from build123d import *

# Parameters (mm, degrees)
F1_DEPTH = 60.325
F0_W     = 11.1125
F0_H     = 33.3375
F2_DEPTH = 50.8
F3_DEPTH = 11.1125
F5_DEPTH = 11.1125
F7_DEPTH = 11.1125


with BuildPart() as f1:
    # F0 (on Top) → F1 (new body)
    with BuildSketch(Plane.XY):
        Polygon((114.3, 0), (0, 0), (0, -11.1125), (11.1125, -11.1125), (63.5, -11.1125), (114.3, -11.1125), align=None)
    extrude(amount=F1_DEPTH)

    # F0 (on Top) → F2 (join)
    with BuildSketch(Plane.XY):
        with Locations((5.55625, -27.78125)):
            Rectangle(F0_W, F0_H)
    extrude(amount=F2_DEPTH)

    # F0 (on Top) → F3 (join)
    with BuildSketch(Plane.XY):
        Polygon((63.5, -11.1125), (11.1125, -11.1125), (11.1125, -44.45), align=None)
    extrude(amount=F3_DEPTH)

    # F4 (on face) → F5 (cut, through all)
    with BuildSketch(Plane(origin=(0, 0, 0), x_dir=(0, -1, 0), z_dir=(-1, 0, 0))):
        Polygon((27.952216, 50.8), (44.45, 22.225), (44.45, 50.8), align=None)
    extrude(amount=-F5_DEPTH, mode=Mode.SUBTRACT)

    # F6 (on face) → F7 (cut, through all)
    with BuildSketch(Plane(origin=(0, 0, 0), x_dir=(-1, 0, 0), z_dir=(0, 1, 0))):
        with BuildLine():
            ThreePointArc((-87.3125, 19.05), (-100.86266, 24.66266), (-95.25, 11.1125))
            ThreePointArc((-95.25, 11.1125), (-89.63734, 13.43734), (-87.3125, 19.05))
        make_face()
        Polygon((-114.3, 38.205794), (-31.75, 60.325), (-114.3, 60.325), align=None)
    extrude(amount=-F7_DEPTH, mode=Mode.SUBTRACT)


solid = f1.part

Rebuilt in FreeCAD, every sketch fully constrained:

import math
import FreeCAD as App
import Part
import Sketcher
Q = App.Units.Quantity


def add_polygon(sketch, points):
    """Adds a closed chain of lines whose ends are joined by coincident constraints."""
    first, n = sketch.GeometryCount, len(points)
    for a, b in zip(points, points[1:] + points[:1]):
        sketch.addGeometry(Part.LineSegment(App.Vector(*a, 0), App.Vector(*b, 0)), False)
    for i in range(n):
        sketch.addConstraint(Sketcher.Constraint("Coincident", first + i, 2, first + (i + 1) % n, 1))

doc = App.newDocument("Part")
params = doc.addObject("Spreadsheet::Sheet", "Params")
for row, (alias, value) in enumerate([
    ("sketch1_width", "4.5 in"),
    ("sketch1_height", "0.4375 in"),
    ("pad1_length", "2.375 in"),
    ("sketch2_width", "0.4375 in"),
    ("sketch2_height", "1.3125 in"),
    ("pad2_length", "2 in"),
    ("sketch3_width", "2.0625 in"),
    ("sketch3_height", "1.3125 in"),
    ("pad3_length", "0.4375 in"),
    ("sketch4_height", "1.125 in"),
    ("sketch5_radius", "0.3125 in"),
    ("sketch5_width", "3.25 in"),
], start=1):
    params.set(f"A{row}", alias)
    params.set(f"B{row}", "=" + value)
    params.setAlias(f"B{row}", alias)

body = doc.addObject("PartDesign::Body", "Body")

# Sketch on XY plane
sketch1 = body.newObject("Sketcher::SketchObject", "Sketch")
sketch1.AttachmentSupport = (doc.getObject("XY_Plane"), [""])
sketch1.MapMode = "FlatFace"
add_polygon(sketch1, [(114, 0), (0, 0), (0, -11), (114, -11)])  # lines 0-3
sketch1.addConstraint(Sketcher.Constraint("Horizontal", 0))
sketch1.addConstraint(Sketcher.Constraint("Vertical", 1))
sketch1.addConstraint(Sketcher.Constraint("Horizontal", 2))
sketch1.addConstraint(Sketcher.Constraint("Vertical", 3))
sketch1.addConstraint(Sketcher.Constraint("Coincident", 0, 2, -1, 1))
sketch1.addConstraint(Sketcher.Constraint("DistanceX", 0, 2, 0, 1, Q("4.5 in")))
sketch1.addConstraint(Sketcher.Constraint("DistanceY", 1, 2, 1, 1, Q("0.4375 in")))
sketch1.setExpression("Constraints[9]", "Params.sketch1_width")
sketch1.setExpression("Constraints[10]", "Params.sketch1_height")
pad1 = body.newObject("PartDesign::Pad", "Pad")
pad1.Profile = sketch1
pad1.setExpression("Length", "Params.pad1_length")

# Sketch on XY plane
sketch2 = body.newObject("Sketcher::SketchObject", "Sketch001")
sketch2.AttachmentSupport = (doc.getObject("XY_Plane"), [""])
sketch2.MapMode = "FlatFace"
add_polygon(sketch2, [(0, -11), (0, -44), (11, -44), (11, -11)])  # lines 0-3
sketch2.addConstraint(Sketcher.Constraint("Vertical", 0))
sketch2.addConstraint(Sketcher.Constraint("Horizontal", 1))
sketch2.addConstraint(Sketcher.Constraint("Vertical", 2))
sketch2.addConstraint(Sketcher.Constraint("Horizontal", 3))
sketch2.addConstraint(Sketcher.Constraint("PointOnObject", 0, 2, -2))
sketch2.addConstraint(Sketcher.Constraint("DistanceX", 1, 1, 1, 2, Q("0.4375 in")))
sketch2.addConstraint(Sketcher.Constraint("DistanceY", 0, 2, 0, 1, Q("1.3125 in")))
sketch2.addConstraint(Sketcher.Constraint("DistanceY", 0, 2, -1, 1, Q("1.75 in")))
sketch2.setExpression("Constraints[9]", "Params.sketch2_width")
sketch2.setExpression("Constraints[10]", "Params.sketch2_height")
pad2 = body.newObject("PartDesign::Pad", "Pad001")
pad2.Profile = sketch2
pad2.setExpression("Length", "Params.pad2_length")

# Sketch on XY plane
sketch3 = body.newObject("Sketcher::SketchObject", "Sketch002")
sketch3.AttachmentSupport = (doc.getObject("XY_Plane"), [""])
sketch3.MapMode = "FlatFace"
add_polygon(sketch3, [(64, -11), (11, -11), (11, -44)])  # lines 0-2
sketch3.addConstraint(Sketcher.Constraint("Horizontal", 0))
sketch3.addConstraint(Sketcher.Constraint("Vertical", 1))
sketch3.addConstraint(Sketcher.Constraint("DistanceX", -1, 1, 2, 2, Q("2.5 in")))
sketch3.addConstraint(Sketcher.Constraint("DistanceX", 0, 2, 0, 1, Q("2.0625 in")))
sketch3.addConstraint(Sketcher.Constraint("DistanceY", 1, 2, 1, 1, Q("1.3125 in")))
sketch3.addConstraint(Sketcher.Constraint("DistanceY", 1, 2, -1, 1, Q("1.75 in")))
sketch3.setExpression("Constraints[6]", "Params.sketch3_width")
sketch3.setExpression("Constraints[7]", "Params.sketch3_height")
pad3 = body.newObject("PartDesign::Pad", "Pad002")
pad3.Profile = sketch3
pad3.setExpression("Length", "Params.pad3_length")

# Sketch on YZ plane
sketch4 = body.newObject("Sketcher::SketchObject", "Sketch003")
sketch4.AttachmentSupport = (doc.getObject("YZ_Plane"), [""])
sketch4.MapMode = "FlatFace"
add_polygon(sketch4, [(-28, 51), (-44, 22), (-44, 51)])  # lines 0-2
sketch4.addConstraint(Sketcher.Constraint("Vertical", 1))
sketch4.addConstraint(Sketcher.Constraint("Horizontal", 2))
sketch4.addConstraint(Sketcher.Constraint("DistanceY", -1, 1, 1, 2, Q("2 in")))
sketch4.addConstraint(Sketcher.Constraint("Angle", 0, Q("-120 deg")))
sketch4.addConstraint(Sketcher.Constraint("DistanceY", 1, 1, 1, 2, Q("1.125 in")))
sketch4.addConstraint(Sketcher.Constraint("DistanceX", 0, 2, -1, 1, Q("1.75 in")))
sketch4.setExpression("Constraints[7]", "Params.sketch4_height")
pocket1 = body.newObject("PartDesign::Pocket", "Pocket")
pocket1.Profile = sketch4
pocket1.Type = "ThroughAll"
pocket1.Reversed = True

# Sketch on XZ plane
sketch5 = body.newObject("Sketcher::SketchObject", "Sketch004")
sketch5.AttachmentSupport = (doc.getObject("XZ_Plane"), [""])
sketch5.MapMode = "FlatFace"
sketch5.addGeometry(Part.ArcOfCircle(Part.Circle(App.Vector(95, 19, 0), App.Vector(0, 0, 1), 8), math.radians(-90), math.radians(180)), False)  # 0
sketch5.addGeometry(Part.ArcOfCircle(Part.Circle(App.Vector(95, 19, 0), App.Vector(0, 0, 1), 8), math.radians(-180), math.radians(-90)), False)  # 1
add_polygon(sketch5, [(114, 38), (32, 60), (114, 60)])  # lines 2-4
sketch5.addConstraint(Sketcher.Constraint("Tangent", 0, 1, 1, 2))
sketch5.addConstraint(Sketcher.Constraint("Coincident", 1, 1, 0, 2))
sketch5.addConstraint(Sketcher.Constraint("Horizontal", 3))
sketch5.addConstraint(Sketcher.Constraint("Vertical", 4))
sketch5.addConstraint(Sketcher.Constraint("Horizontal", 0, 3, 1, 1))
sketch5.addConstraint(Sketcher.Constraint("Vertical", 1, 3, 0, 1))
sketch5.addConstraint(Sketcher.Constraint("Angle", 2, Q("165 deg")))
sketch5.addConstraint(Sketcher.Constraint("Radius", 0, Q("0.3125 in")))
sketch5.addConstraint(Sketcher.Constraint("DistanceX", 3, 1, 3, 2, Q("3.25 in")))
sketch5.addConstraint(Sketcher.Constraint("DistanceX", -1, 1, 3, 2, Q("4.5 in")))
sketch5.addConstraint(Sketcher.Constraint("DistanceX", 2, 2, 0, 3, Q("2.5 in")))
sketch5.addConstraint(Sketcher.Constraint("DistanceY", -1, 1, 0, 3, Q("0.75 in")))
sketch5.addConstraint(Sketcher.Constraint("DistanceY", -1, 1, 2, 2, Q("2.375 in")))
sketch5.setExpression("Constraints[10]", "Params.sketch5_radius")
sketch5.setExpression("Constraints[11]", "Params.sketch5_width")
pocket2 = body.newObject("PartDesign::Pocket", "Pocket001")
pocket2.Profile = sketch5
pocket2.Type = "ThroughAll"
pocket2.Reversed = True

doc.recompute()
